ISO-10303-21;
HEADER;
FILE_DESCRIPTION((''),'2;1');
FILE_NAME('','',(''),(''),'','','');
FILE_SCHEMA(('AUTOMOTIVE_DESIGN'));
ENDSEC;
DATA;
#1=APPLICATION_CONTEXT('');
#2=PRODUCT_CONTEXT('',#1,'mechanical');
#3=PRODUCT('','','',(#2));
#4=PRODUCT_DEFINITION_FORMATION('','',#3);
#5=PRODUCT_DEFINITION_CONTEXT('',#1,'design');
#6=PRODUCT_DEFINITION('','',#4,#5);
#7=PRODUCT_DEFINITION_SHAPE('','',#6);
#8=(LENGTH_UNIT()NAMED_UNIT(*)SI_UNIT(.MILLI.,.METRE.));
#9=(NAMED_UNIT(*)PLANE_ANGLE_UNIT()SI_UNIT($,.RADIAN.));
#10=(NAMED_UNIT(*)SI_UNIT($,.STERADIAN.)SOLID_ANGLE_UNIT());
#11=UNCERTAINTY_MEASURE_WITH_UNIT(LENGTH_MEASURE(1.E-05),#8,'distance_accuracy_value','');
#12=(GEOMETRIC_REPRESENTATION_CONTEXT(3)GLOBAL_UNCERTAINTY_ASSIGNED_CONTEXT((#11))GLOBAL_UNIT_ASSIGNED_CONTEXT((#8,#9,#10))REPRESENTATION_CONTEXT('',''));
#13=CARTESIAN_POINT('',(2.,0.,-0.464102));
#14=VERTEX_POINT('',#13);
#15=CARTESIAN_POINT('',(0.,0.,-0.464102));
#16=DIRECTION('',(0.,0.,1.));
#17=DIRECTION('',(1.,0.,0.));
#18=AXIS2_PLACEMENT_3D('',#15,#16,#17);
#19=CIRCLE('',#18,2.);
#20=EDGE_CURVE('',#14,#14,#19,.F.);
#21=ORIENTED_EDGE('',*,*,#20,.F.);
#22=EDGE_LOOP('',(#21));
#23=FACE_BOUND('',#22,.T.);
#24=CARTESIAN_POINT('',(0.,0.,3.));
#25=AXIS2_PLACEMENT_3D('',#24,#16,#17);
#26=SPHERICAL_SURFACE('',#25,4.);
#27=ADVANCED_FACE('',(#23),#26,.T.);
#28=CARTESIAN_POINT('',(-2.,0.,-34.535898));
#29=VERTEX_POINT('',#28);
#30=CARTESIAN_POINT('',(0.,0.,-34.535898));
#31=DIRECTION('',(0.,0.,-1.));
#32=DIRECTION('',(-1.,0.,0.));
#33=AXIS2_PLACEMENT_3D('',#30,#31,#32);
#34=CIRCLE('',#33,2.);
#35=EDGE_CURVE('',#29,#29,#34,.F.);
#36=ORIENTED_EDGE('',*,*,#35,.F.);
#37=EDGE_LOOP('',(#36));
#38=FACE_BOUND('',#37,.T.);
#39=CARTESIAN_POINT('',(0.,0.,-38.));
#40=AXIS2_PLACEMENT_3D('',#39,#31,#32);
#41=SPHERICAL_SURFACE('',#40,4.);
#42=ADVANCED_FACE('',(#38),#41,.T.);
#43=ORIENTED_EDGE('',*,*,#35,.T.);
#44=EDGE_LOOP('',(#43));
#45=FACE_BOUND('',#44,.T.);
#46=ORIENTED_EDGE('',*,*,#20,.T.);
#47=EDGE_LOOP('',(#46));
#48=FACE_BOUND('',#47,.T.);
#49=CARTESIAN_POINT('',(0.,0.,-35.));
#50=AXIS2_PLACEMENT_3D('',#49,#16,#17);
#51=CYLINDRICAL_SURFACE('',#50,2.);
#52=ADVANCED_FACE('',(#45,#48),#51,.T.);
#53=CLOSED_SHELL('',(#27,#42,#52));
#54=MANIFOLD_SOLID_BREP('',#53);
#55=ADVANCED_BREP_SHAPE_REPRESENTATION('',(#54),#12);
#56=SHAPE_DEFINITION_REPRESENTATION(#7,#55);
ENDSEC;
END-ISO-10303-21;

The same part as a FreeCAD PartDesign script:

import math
import FreeCAD as App
import Part
import Sketcher
from FreeCAD import Vector
Q = App.Units.Quantity

doc = App.newDocument("Part")
body = doc.addObject("PartDesign::Body", "Body")

# Sketch on XY plane
sketch1 = doc.addObject("Sketcher::SketchObject", "Sketch")
body.addObject(sketch1)
sketch1.AttachmentSupport = (doc.XY_Plane, [""])
sketch1.MapMode = "FlatFace"
sketch1.addGeometry(Part.Circle(Vector(0, 0, 0), Vector(0, 0, 1), 2), False)
sketch1.addConstraint([
    Sketcher.Constraint("Coincident", 0, 3, -1, 1),
    Sketcher.Constraint("Diameter", 0, Q("4 mm")),
])
pad1 = doc.addObject("PartDesign::Pad", "Pad")
body.addObject(pad1)
pad1.Profile = sketch1
pad1.Length = 35
pad1.Reversed = True

# Sketch on XY plane
sketch2 = doc.addObject("Sketcher::SketchObject", "Sketch001")
body.addObject(sketch2)
sketch2.AttachmentSupport = (doc.XY_Plane, [""])
sketch2.MapMode = "FlatFace"
sketch2.AttachmentOffset = App.Placement(Vector(0, 0, 3), App.Rotation())
sketch2.addGeometry([
    Part.LineSegment(Vector(0, 4, 0), Vector(0, -4, 0)),
    Part.ArcOfCircle(Part.Circle(Vector(0, 0, 0), Vector(0, 0, 1), 4), math.radians(-90), math.radians(90)),
], False)
sketch2.addConstraint([
    Sketcher.Constraint("Coincident", 0, 1, 1, 2),
    Sketcher.Constraint("Coincident", 1, 1, 0, 2),
    Sketcher.Constraint("Vertical", 0),
    Sketcher.Constraint("Coincident", 1, 3, -1, 1),
    Sketcher.Constraint("PointOnObject", 0, 1, -2),
    Sketcher.Constraint("Radius", 1, Q("4 mm")),
])
revolution = doc.addObject("PartDesign::Revolution", "Revolution")
body.addObject(revolution)
revolution.Profile = sketch2
revolution.ReferenceAxis = (sketch2, ["V_Axis"])
revolution.Angle = 360
doc.recompute()

datumplane = doc.addObject("PartDesign::Plane", "DatumPlane")
body.addObject(datumplane)
datumplane.AttachmentSupport = (doc.XY_Plane, [""])
datumplane.MapMode = "FlatFace"
datumplane.AttachmentOffset = App.Placement(Vector(0, 0, -17.5), App.Rotation())
mirrored = doc.addObject("PartDesign::Mirrored", "Mirrored")
body.addObject(mirrored)
mirrored.Originals = [revolution]
mirrored.MirrorPlane = (datumplane, [""])
body.Tip = mirrored

doc.recompute()
